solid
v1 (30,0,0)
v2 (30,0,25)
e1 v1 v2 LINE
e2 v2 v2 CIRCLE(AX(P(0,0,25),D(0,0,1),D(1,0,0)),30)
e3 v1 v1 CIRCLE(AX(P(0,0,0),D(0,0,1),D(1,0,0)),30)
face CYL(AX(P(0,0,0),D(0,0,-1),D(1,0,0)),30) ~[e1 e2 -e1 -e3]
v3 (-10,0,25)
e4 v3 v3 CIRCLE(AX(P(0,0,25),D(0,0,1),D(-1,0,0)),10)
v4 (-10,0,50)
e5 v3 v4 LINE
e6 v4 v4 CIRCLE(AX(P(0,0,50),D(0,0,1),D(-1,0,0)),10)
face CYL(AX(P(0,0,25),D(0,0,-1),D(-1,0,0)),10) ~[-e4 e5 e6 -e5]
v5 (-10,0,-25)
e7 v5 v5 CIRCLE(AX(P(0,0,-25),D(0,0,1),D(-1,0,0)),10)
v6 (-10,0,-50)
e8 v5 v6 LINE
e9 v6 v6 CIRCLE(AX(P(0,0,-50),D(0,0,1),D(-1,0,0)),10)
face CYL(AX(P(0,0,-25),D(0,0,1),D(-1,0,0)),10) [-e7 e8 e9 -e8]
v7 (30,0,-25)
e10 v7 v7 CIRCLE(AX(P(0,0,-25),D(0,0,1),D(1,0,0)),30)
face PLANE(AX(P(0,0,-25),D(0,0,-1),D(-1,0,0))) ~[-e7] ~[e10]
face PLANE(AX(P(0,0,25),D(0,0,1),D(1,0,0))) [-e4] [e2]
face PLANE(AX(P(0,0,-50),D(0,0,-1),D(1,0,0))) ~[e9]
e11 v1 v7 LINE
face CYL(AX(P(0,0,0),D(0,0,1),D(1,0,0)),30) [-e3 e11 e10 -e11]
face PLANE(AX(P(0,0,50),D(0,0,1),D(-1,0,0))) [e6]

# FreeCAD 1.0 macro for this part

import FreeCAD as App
import Part
import Sketcher
Q = App.Units.Quantity

doc = App.newDocument("Part")
body = doc.addObject("PartDesign::Body", "Body")

# Sketch on XY plane
sketch1 = body.newObject("Sketcher::SketchObject", "Sketch")
sketch1.AttachmentSupport = (doc.getObject("XY_Plane"), [""])
sketch1.MapMode = "FlatFace"
sketch1.addGeometry(Part.Circle(App.Vector(0, 0, 0), App.Vector(0, 0, 1), 30), False)
sketch1.addConstraint([
    Sketcher.Constraint("Coincident", 0, 3, -1, 1),
    Sketcher.Constraint("Diameter", 0, Q("60 mm")),
])
pad1 = body.newObject("PartDesign::Pad", "Pad")
pad1.Profile = sketch1
pad1.Length = 25

# Sketch on XY plane
sketch2 = body.newObject("Sketcher::SketchObject", "Sketch001")
sketch2.AttachmentSupport = (doc.getObject("XY_Plane"), [""])
sketch2.MapMode = "FlatFace"
sketch2.AttachmentOffset = App.Placement(App.Vector(0, 0, 25), App.Rotation())
sketch2.addGeometry(Part.Circle(App.Vector(0, 0, 0), App.Vector(0, 0, 1), 10), False)
sketch2.addConstraint([
    Sketcher.Constraint("Coincident", 0, 3, -1, 1),
    Sketcher.Constraint("Diameter", 0, Q("20 mm")),
])
pad2 = body.newObject("PartDesign::Pad", "Pad001")
pad2.Profile = sketch2
pad2.Length = 25
doc.recompute()

mirrored = body.newObject("PartDesign::Mirrored", "Mirrored")
mirrored.TransformMode = "Transform body"
mirrored.MirrorPlane = (doc.getObject("XY_Plane"), [""])
body.Tip = mirrored

doc.recompute()
